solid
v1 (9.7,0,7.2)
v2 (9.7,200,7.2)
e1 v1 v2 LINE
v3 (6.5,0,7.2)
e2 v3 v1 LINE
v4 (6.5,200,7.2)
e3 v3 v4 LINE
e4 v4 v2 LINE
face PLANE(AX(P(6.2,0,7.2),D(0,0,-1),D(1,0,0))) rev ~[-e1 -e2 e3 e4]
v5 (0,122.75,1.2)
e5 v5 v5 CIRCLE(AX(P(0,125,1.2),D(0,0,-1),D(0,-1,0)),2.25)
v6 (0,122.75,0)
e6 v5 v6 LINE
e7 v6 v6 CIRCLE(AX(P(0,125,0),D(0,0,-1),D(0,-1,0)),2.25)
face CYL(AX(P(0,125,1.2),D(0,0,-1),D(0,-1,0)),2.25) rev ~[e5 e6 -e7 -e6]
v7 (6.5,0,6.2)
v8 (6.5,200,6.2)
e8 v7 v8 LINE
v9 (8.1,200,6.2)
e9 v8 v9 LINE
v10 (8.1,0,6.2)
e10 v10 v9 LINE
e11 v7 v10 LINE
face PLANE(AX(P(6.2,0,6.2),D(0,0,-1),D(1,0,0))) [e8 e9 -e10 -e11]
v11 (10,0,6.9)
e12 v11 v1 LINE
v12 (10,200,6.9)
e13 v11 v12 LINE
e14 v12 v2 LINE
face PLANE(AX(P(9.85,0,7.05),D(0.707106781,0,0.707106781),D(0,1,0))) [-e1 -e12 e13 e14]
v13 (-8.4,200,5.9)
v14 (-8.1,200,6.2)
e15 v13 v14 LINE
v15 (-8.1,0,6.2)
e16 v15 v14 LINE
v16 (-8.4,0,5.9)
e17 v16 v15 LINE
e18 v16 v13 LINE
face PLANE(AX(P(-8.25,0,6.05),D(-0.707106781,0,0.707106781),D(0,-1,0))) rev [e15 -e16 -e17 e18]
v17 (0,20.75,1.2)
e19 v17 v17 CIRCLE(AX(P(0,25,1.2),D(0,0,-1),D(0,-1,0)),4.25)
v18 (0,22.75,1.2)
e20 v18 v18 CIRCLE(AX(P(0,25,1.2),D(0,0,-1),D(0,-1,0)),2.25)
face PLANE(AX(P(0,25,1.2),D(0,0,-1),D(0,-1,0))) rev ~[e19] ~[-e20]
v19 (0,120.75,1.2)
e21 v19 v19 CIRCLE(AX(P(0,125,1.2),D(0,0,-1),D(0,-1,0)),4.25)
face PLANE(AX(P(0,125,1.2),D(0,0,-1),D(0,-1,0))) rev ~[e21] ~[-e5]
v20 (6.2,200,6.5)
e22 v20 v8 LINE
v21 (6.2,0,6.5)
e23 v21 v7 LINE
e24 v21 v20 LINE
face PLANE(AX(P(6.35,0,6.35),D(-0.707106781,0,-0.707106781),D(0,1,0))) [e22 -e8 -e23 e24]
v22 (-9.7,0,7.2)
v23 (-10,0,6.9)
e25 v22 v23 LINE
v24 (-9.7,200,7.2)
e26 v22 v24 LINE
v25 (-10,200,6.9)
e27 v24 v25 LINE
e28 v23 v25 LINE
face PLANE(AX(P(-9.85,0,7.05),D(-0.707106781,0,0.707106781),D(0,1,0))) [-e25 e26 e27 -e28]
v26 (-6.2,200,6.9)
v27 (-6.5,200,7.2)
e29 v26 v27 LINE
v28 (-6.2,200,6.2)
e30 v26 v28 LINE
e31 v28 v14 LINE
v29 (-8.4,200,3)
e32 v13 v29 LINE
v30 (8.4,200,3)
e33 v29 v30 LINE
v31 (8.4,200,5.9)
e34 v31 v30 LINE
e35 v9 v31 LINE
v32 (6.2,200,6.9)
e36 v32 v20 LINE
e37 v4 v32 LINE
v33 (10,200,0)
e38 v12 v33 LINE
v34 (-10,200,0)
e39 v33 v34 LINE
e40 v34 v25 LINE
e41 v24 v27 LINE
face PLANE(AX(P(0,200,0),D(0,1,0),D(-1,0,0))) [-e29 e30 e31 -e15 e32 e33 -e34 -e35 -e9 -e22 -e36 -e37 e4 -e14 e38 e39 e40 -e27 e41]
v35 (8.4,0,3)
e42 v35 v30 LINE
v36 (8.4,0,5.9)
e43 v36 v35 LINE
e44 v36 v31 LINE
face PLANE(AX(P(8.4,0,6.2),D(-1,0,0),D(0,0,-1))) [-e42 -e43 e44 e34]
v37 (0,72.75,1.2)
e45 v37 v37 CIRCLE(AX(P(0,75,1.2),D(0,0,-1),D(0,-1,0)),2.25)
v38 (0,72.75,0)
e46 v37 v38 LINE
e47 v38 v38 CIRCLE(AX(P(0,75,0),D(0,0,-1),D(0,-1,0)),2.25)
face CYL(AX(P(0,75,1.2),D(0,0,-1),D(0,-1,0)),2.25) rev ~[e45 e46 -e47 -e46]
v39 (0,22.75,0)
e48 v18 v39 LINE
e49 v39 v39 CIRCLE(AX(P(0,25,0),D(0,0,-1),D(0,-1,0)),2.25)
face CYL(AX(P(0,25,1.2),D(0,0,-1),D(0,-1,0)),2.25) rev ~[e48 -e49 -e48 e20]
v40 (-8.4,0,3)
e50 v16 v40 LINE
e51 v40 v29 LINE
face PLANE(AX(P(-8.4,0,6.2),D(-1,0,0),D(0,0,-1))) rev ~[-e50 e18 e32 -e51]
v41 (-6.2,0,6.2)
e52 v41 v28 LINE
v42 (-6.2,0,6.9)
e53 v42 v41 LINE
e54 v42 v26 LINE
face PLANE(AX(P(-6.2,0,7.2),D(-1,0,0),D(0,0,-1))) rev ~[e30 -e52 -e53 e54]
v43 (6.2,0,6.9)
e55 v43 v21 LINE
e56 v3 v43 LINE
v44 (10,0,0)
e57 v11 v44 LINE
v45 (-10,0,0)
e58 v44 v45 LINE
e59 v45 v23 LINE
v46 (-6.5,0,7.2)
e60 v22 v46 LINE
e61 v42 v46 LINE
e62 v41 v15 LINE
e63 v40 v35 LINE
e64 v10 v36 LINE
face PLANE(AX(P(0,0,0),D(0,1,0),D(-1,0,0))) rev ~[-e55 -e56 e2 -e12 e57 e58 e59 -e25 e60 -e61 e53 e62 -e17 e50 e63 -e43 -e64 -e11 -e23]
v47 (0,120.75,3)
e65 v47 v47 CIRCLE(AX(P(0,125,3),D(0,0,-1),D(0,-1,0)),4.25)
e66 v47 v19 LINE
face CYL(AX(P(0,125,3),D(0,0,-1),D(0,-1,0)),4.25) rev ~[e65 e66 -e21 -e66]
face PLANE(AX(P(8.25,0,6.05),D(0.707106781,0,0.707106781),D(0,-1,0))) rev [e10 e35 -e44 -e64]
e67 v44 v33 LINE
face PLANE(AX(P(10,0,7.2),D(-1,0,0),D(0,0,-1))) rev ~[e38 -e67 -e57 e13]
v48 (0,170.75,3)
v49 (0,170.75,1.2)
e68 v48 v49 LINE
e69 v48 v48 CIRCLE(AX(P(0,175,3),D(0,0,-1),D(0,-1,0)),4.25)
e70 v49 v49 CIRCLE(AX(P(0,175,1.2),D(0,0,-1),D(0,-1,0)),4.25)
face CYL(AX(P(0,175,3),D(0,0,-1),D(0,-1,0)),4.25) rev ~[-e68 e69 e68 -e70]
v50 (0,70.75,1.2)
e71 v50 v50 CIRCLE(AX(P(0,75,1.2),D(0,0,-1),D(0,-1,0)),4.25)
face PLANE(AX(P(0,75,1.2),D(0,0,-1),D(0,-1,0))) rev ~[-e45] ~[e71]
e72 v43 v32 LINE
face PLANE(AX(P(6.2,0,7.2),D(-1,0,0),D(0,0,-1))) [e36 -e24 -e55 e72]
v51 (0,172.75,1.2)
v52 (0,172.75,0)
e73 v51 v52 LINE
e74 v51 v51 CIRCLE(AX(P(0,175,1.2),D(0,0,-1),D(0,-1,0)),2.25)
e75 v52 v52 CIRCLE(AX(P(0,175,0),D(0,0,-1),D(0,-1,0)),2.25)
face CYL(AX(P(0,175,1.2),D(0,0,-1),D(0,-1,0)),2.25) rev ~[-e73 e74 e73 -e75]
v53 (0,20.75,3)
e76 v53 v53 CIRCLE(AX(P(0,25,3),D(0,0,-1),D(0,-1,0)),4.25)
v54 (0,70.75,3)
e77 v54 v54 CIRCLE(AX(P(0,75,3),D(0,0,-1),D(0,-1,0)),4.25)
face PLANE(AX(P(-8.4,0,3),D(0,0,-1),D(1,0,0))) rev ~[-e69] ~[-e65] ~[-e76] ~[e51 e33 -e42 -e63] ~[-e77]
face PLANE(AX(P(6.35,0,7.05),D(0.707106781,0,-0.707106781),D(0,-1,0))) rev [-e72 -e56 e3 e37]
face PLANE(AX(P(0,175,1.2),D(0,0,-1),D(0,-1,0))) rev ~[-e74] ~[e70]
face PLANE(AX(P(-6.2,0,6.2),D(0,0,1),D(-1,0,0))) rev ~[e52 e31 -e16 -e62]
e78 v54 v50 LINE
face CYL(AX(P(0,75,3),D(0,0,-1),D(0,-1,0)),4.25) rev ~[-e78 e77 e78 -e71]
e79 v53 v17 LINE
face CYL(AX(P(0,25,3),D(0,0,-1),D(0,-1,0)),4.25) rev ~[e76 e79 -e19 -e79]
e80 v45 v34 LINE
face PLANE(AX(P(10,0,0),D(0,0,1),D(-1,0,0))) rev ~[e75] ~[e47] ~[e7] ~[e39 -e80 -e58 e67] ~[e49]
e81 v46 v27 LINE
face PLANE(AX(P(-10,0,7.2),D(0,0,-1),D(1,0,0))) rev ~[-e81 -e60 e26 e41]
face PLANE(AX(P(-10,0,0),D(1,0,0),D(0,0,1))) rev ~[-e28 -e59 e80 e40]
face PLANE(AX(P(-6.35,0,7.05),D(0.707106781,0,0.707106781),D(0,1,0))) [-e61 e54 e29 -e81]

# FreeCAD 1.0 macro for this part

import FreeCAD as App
import Part
import Sketcher
from FreeCAD import Vector
Q = App.Units.Quantity


def edges_at(feature, points):
    """Names of the edges that pass closest to the given points."""
    edges = feature.Shape.Edges
    near = lambda p: min(range(len(edges)), key=lambda i: edges[i].distToShape(Part.Vertex(*p))[0])
    return sorted({f"Edge{near(p) + 1}" for p in points})

doc = App.newDocument("Part")
params = doc.addObject("Spreadsheet::Sheet", "Params")
for row, (alias, value) in enumerate([
    ("sketch1_width", "20 mm"),
    ("sketch1_height", "1 mm"),
    ("sketch1_width2", "16.8 mm"),
    ("sketch1_height2", "7.2 mm"),
    ("pad1_length", "200 mm"),
    ("chamfer_size", "0.3 mm"),
    ("sketch2_diameter", "4.5 mm"),
    ("hole_diameter", "4.5 mm"),
    ("hole_cbore_diameter", "8.5 mm"),
    ("hole_cbore_depth", "1.8 mm"),
    ("linearpattern_pitch", "50 mm"),
], start=1):
    params.set(f"A{row}", alias)
    params.set(f"B{row}", "=" + value)
    params.setAlias(f"B{row}", alias)

body = doc.addObject("PartDesign::Body", "Body")

sketch1 = doc.addObject("Sketcher::SketchObject", "Sketch")
body.addObject(sketch1)
sketch1.AttachmentSupport = (doc.XZ_Plane, [""])
sketch1.MapMode = "FlatFace"
sketch1.addGeometry(Part.LineSegment(Vector(10, 7.2, 0), Vector(10, 0, 0)), False)
sketch1.addGeometry(Part.LineSegment(Vector(10, 0, 0), Vector(-10, 0, 0)), False)
sketch1.addGeometry(Part.LineSegment(Vector(-10, 0, 0), Vector(-10, 7.2, 0)), False)
sketch1.addGeometry(Part.LineSegment(Vector(-10, 7.2, 0), Vector(-6.2, 7.2, 0)), False)
sketch1.addGeometry(Part.LineSegment(Vector(-6.2, 7.2, 0), Vector(-6.2, 6.2, 0)), False)
sketch1.addGeometry(Part.LineSegment(Vector(-6.2, 6.2, 0), Vector(-8.4, 6.2, 0)), False)
sketch1.addGeometry(Part.LineSegment(Vector(-8.4, 6.2, 0), Vector(-8.4, 3, 0)), False)
sketch1.addGeometry(Part.LineSegment(Vector(-8.4, 3, 0), Vector(8.4, 3, 0)), False)
sketch1.addGeometry(Part.LineSegment(Vector(8.4, 3, 0), Vector(8.4, 6.2, 0)), False)
sketch1.addGeometry(Part.LineSegment(Vector(8.4, 6.2, 0), Vector(6.2, 6.2, 0)), False)
sketch1.addGeometry(Part.LineSegment(Vector(6.2, 6.2, 0), Vector(6.2, 7.2, 0)), False)
sketch1.addGeometry(Part.LineSegment(Vector(6.2, 7.2, 0), Vector(10, 7.2, 0)), False)
sketch1.addConstraint(Sketcher.Constraint("Coincident", 0, 2, 1, 1))
sketch1.addConstraint(Sketcher.Constraint("Coincident", 1, 2, 2, 1))
sketch1.addConstraint(Sketcher.Constraint("Coincident", 2, 2, 3, 1))
sketch1.addConstraint(Sketcher.Constraint("Coincident", 3, 2, 4, 1))
sketch1.addConstraint(Sketcher.Constraint("Coincident", 4, 2, 5, 1))
sketch1.addConstraint(Sketcher.Constraint("Coincident", 5, 2, 6, 1))
sketch1.addConstraint(Sketcher.Constraint("Coincident", 6, 2, 7, 1))
sketch1.addConstraint(Sketcher.Constraint("Coincident", 7, 2, 8, 1))
sketch1.addConstraint(Sketcher.Constraint("Coincident", 8, 2, 9, 1))
sketch1.addConstraint(Sketcher.Constraint("Coincident", 9, 2, 10, 1))
sketch1.addConstraint(Sketcher.Constraint("Coincident", 10, 2, 11, 1))
sketch1.addConstraint(Sketcher.Constraint("Coincident", 11, 2, 0, 1))
sketch1.addConstraint(Sketcher.Constraint("Vertical", 0))
sketch1.addConstraint(Sketcher.Constraint("Horizontal", 1))
sketch1.addConstraint(Sketcher.Constraint("Vertical", 2))
sketch1.addConstraint(Sketcher.Constraint("Horizontal", 3))
sketch1.addConstraint(Sketcher.Constraint("Vertical", 4))
sketch1.addConstraint(Sketcher.Constraint("Horizontal", 5))
sketch1.addConstraint(Sketcher.Constraint("Vertical", 6))
sketch1.addConstraint(Sketcher.Constraint("Horizontal", 7))
sketch1.addConstraint(Sketcher.Constraint("Vertical", 8))
sketch1.addConstraint(Sketcher.Constraint("Horizontal", 9))
sketch1.addConstraint(Sketcher.Constraint("Vertical", 10))
sketch1.addConstraint(Sketcher.Constraint("Horizontal", 11))
sketch1.addConstraint(Sketcher.Constraint("Symmetric", 0, 2, 1, 2, -1, 1))
sketch1.addConstraint(Sketcher.Constraint("Symmetric", 5, 2, 8, 2, -2))
sketch1.addConstraint(Sketcher.Constraint("Symmetric", 3, 2, 10, 2, -2))
sketch1.addConstraint(Sketcher.Constraint("DistanceX", 1, 2, 1, 1, Q("20 mm")))
sketch1.addConstraint(Sketcher.Constraint("DistanceY", 4, 2, 4, 1, Q("1 mm")))
sketch1.addConstraint(Sketcher.Constraint("DistanceX", 7, 1, 7, 2, Q("16.8 mm")))
sketch1.addConstraint(Sketcher.Constraint("DistanceY", 0, 2, 0, 1, Q("7.2 mm")))
sketch1.addConstraint(Sketcher.Constraint("DistanceY", -1, 1, 6, 2, Q("3 mm")))
sketch1.addConstraint(Sketcher.Constraint("DistanceX", 4, 2, 9, 2, Q("12.4 mm")))
sketch1.setExpression("Constraints[27]", "Params.sketch1_width")
sketch1.setExpression("Constraints[28]", "Params.sketch1_height")
sketch1.setExpression("Constraints[29]", "Params.sketch1_width2")
sketch1.setExpression("Constraints[30]", "Params.sketch1_height2")
pad1 = doc.addObject("PartDesign::Pad", "Pad")
body.addObject(pad1)
pad1.Profile = sketch1
pad1.setExpression("Length", "Params.pad1_length")
pad1.Reversed = True
doc.recompute()

chamfer = doc.addObject("PartDesign::Chamfer", "Chamfer")
body.addObject(chamfer)
chamfer.Base = (pad1, edges_at(pad1, [
    (-10, 100, 7.2),
    (-6.2, 100, 7.2),
    (6.2, 100, 6.2),
    (6.2, 100, 7.2),
    (10, 100, 7.2),
    (8.4, 100, 6.2),
    (-8.4, 100, 6.2),
]))
chamfer.setExpression("Size", "Params.chamfer_size")

sketch2 = doc.addObject("Sketcher::SketchObject", "Sketch001")
body.addObject(sketch2)
sketch2.AttachmentSupport = (doc.XY_Plane, [""])
sketch2.MapMode = "FlatFace"
sketch2.AttachmentOffset = App.Placement(Vector(0, 0, 3), App.Rotation())
sketch2.addGeometry(Part.Circle(Vector(0, 25, 0), Vector(0, 0, 1), 2.2), False)
sketch2.addConstraint(Sketcher.Constraint("PointOnObject", 0, 3, -2))
sketch2.addConstraint(Sketcher.Constraint("Diameter", 0, Q("4.5 mm")))
sketch2.addConstraint(Sketcher.Constraint("DistanceY", -1, 1, 0, 3, Q("25 mm")))
sketch2.setExpression("Constraints[1]", "Params.sketch2_diameter")
doc.recompute()
hole = doc.addObject("PartDesign::Hole", "Hole")
body.addObject(hole)
hole.Profile = sketch2
hole.ThreadType = "None"
hole.setExpression("Diameter", "Params.hole_diameter")
hole.DepthType = "ThroughAll"
hole.HoleCutType = "Counterbore"
hole.setExpression("HoleCutDiameter", "Params.hole_cbore_diameter")
hole.setExpression("HoleCutDepth", "Params.hole_cbore_depth")
doc.recompute()

linearpattern = doc.addObject("PartDesign::LinearPattern", "LinearPattern")
body.addObject(linearpattern)
linearpattern.Originals = [hole]
linearpattern.Direction = (doc.Y_Axis, [""])
linearpattern.Mode = "offset"
linearpattern.setExpression("Offset", "Params.linearpattern_pitch")
linearpattern.Occurrences = 10
body.Tip = linearpattern

doc.recompute()
